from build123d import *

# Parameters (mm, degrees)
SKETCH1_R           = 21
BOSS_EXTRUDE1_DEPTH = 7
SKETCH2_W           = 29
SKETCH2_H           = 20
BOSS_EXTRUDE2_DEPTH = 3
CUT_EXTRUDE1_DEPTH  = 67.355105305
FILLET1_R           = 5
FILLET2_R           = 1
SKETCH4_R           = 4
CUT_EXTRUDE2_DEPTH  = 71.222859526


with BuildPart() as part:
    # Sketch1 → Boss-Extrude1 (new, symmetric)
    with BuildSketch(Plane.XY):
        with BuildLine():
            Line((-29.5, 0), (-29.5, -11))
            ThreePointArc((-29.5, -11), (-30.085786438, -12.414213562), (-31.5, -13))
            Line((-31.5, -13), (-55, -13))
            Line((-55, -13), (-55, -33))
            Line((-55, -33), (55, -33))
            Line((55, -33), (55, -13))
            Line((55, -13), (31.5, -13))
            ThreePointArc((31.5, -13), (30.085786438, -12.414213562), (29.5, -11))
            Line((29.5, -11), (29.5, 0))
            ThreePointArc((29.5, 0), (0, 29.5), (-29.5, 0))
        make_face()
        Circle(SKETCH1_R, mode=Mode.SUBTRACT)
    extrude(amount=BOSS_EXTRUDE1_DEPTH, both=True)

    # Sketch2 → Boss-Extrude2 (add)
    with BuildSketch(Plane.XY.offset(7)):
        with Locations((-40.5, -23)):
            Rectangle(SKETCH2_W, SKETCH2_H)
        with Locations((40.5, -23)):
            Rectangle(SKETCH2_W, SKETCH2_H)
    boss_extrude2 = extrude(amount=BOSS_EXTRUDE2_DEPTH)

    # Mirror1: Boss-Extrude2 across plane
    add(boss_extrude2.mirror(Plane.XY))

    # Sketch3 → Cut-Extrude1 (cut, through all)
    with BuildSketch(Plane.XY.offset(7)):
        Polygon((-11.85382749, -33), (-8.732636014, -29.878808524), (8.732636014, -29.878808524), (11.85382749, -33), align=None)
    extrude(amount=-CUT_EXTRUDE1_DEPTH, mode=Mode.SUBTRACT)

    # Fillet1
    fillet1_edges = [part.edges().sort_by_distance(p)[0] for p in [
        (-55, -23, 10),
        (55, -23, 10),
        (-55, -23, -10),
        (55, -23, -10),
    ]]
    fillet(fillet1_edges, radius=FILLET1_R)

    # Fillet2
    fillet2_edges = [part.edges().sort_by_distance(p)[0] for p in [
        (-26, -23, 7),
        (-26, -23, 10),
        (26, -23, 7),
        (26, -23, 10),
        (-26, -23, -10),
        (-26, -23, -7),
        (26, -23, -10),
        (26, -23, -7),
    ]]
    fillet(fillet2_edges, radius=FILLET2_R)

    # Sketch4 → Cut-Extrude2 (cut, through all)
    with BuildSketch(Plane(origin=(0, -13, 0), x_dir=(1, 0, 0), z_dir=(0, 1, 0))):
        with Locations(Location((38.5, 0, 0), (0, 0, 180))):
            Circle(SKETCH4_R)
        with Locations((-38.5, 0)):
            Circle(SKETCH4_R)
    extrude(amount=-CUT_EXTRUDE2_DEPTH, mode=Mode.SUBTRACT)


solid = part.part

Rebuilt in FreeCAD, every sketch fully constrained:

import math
import FreeCAD as App
import Part
import Sketcher

V = App.Vector
Q = App.Units.Quantity


def edges_at(feature, points):
    """Names of the edges that pass closest to the given points."""
    edges = feature.Shape.Edges
    near = lambda p: min(range(len(edges)), key=lambda i: edges[i].distToShape(Part.Vertex(*p))[0])
    return sorted({f"Edge{near(p) + 1}" for p in points})


def add_polygon(sketch, points):
    """Adds a closed chain of lines whose ends are joined by coincident constraints."""
    first, n = sketch.GeometryCount, len(points)
    for a, b in zip(points, points[1:] + points[:1]):
        sketch.addGeometry(Part.LineSegment(App.Vector(*a, 0), App.Vector(*b, 0)), False)
    for i in range(n):
        sketch.addConstraint(Sketcher.Constraint("Coincident", first + i, 2, first + (i + 1) % n, 1))

doc = App.newDocument("Part")
body = doc.addObject("PartDesign::Body", "Body")

# Sketch on XY plane
sketch1 = body.newObject("Sketcher::SketchObject", "Sketch")
sketch1.AttachmentSupport = (doc.getObject("XY_Plane"), [""])
sketch1.MapMode = "FlatFace"
sketch1.addGeometry([
    Part.LineSegment(V(-29.5, 0, 0), V(-29.5, -11, 0)),  # 0
    Part.ArcOfCircle(Part.Circle(V(-31.5, -11, 0), V(0, 0, 1), 2), math.radians(-90), math.radians(0)),  # 1
    Part.LineSegment(V(-31.5, -13, 0), V(-55, -13, 0)),  # 2
    Part.LineSegment(V(-55, -13, 0), V(-55, -33, 0)),  # 3
    Part.LineSegment(V(-55, -33, 0), V(55, -33, 0)),  # 4
    Part.LineSegment(V(55, -33, 0), V(55, -13, 0)),  # 5
    Part.LineSegment(V(55, -13, 0), V(31.5, -13, 0)),  # 6
    Part.ArcOfCircle(Part.Circle(V(31.5, -11, 0), V(0, 0, 1), 2), math.radians(-180), math.radians(-90)),  # 7
    Part.LineSegment(V(29.5, -11, 0), V(29.5, 0, 0)),  # 8
    Part.ArcOfCircle(Part.Circle(V(0, 0, 0), V(0, 0, 1), 29.5), math.radians(0), math.radians(180)),  # 9
    Part.Circle(V(0, 0, 0), V(0, 0, 1), 21),  # 10
], False)
sketch1.addConstraint([
    Sketcher.Constraint("Tangent", 0, 2, 1, 2),
    Sketcher.Constraint("Tangent", 1, 1, 2, 1),
    Sketcher.Constraint("Coincident", 2, 2, 3, 1),
    Sketcher.Constraint("Coincident", 3, 2, 4, 1),
    Sketcher.Constraint("Coincident", 4, 2, 5, 1),
    Sketcher.Constraint("Coincident", 5, 2, 6, 1),
    Sketcher.Constraint("Tangent", 6, 2, 7, 2),
    Sketcher.Constraint("Tangent", 7, 1, 8, 1),
    Sketcher.Constraint("Tangent", 8, 2, 9, 1),
    Sketcher.Constraint("Tangent", 9, 2, 0, 1),
    Sketcher.Constraint("Vertical", 0),
    Sketcher.Constraint("Horizontal", 2),
    Sketcher.Constraint("Vertical", 3),
    Sketcher.Constraint("Horizontal", 4),
    Sketcher.Constraint("Vertical", 5),
    Sketcher.Constraint("Horizontal", 6),
    Sketcher.Constraint("Vertical", 8),
    Sketcher.Constraint("Coincident", 9, 3, -1, 1),
    Sketcher.Constraint("Coincident", 10, 3, -1, 1),
    Sketcher.Constraint("Equal", 1, 7),
    Sketcher.Constraint("Symmetric", 2, 2, 5, 2, -2),
    Sketcher.Constraint("Diameter", 10, Q("42 mm")),
    Sketcher.Constraint("Radius", 1, Q("2 mm")),
    Sketcher.Constraint("Radius", 9, Q("29.5 mm")),
    Sketcher.Constraint("DistanceX", 4, 1, 4, 2, Q("110 mm")),
    Sketcher.Constraint("DistanceY", 0, 2, 0, 1, Q("11 mm")),
    Sketcher.Constraint("DistanceY", 3, 2, 3, 1, Q("20 mm")),
])
pad1 = body.newObject("PartDesign::Pad", "Pad")
pad1.Profile = sketch1
pad1.Length = 14
pad1.Midplane = True

# Sketch on XY plane
sketch2 = body.newObject("Sketcher::SketchObject", "Sketch001")
sketch2.AttachmentSupport = (doc.getObject("XY_Plane"), [""])
sketch2.MapMode = "FlatFace"
sketch2.AttachmentOffset = App.Placement(V(0, 0, 7), App.Rotation())
add_polygon(sketch2, [(-55, -13), (-55, -33), (-26, -33), (-26, -13)])  # lines 0-3
add_polygon(sketch2, [(26, -13), (26, -33), (55, -33), (55, -13)])  # lines 4-7
sketch2.addConstraint([
    Sketcher.Constraint("Vertical", 0),
    Sketcher.Constraint("Horizontal", 1),
    Sketcher.Constraint("Vertical", 2),
    Sketcher.Constraint("Horizontal", 3),
    Sketcher.Constraint("Vertical", 4),
    Sketcher.Constraint("Horizontal", 5),
    Sketcher.Constraint("Vertical", 6),
    Sketcher.Constraint("Horizontal", 7),
    Sketcher.Constraint("Symmetric", 1, 2, 4, 2, -2),
    Sketcher.Constraint("Symmetric", 3, 2, 6, 2, -2),
    Sketcher.Constraint("DistanceX", 1, 1, 1, 2, Q("29 mm")),
    Sketcher.Constraint("DistanceY", 0, 2, 0, 1, Q("20 mm")),
    Sketcher.Constraint("DistanceX", 0, 2, -1, 1, Q("55 mm")),
    Sketcher.Constraint("DistanceY", 0, 2, -1, 1, Q("33 mm")),
])
pad2 = body.newObject("PartDesign::Pad", "Pad001")
pad2.Profile = sketch2
pad2.Length = 3
doc.recompute()

mirrored = body.newObject("PartDesign::Mirrored", "Mirrored")
mirrored.Originals = [pad2]
mirrored.MirrorPlane = (doc.getObject("XY_Plane"), [""])
body.Tip = mirrored

# Sketch on XY plane
sketch3 = body.newObject("Sketcher::SketchObject", "Sketch002")
sketch3.AttachmentSupport = (doc.getObject("XY_Plane"), [""])
sketch3.MapMode = "FlatFace"
sketch3.AttachmentOffset = App.Placement(V(0, 0, 7), App.Rotation())
add_polygon(sketch3, [(-8.7, -29.9), (-11.9, -33), (11.9, -33), (8.7, -29.9)])  # lines 0-3
sketch3.addConstraint([
    Sketcher.Constraint("Horizontal", 1),
    Sketcher.Constraint("Horizontal", 3),
    Sketcher.Constraint("Perpendicular", 0, 2),
    Sketcher.Constraint("Equal", 0, 2),
    Sketcher.Constraint("DistanceY", 0, 2, -1, 1, Q("33 mm")),
    Sketcher.Constraint("Distance", 0, Q("4.414031 mm")),
    Sketcher.Constraint("DistanceX", 1, 1, 1, 2, Q("23.707655 mm")),
    Sketcher.Constraint("DistanceX", 0, 2, -1, 1, Q("11.853827 mm")),
])
pocket1 = body.newObject("PartDesign::Pocket", "Pocket")
pocket1.Profile = sketch3
pocket1.Type = "ThroughAll"
doc.recompute()

fillet = body.newObject("PartDesign::Fillet", "Fillet")
fillet.Base = (pocket1, edges_at(pocket1, [
    (-55, -23, 10),
    (55, -23, 10),
    (-55, -23, -10),
    (55, -23, -10),
]))
fillet.Radius = 5
doc.recompute()

fillet2 = body.newObject("PartDesign::Fillet", "Fillet001")
fillet2.Base = (fillet, edges_at(fillet, [
    (-26, -23, 7),
    (-26, -23, 10),
    (26, -23, 7),
    (26, -23, 10),
    (-26, -23, -10),
    (-26, -23, -7),
    (26, -23, -10),
    (26, -23, -7),
]))
fillet2.Radius = 1

# Sketch on XZ plane
sketch4 = body.newObject("Sketcher::SketchObject", "Sketch003")
sketch4.AttachmentSupport = (doc.getObject("XZ_Plane"), [""])
sketch4.MapMode = "FlatFace"
sketch4.AttachmentOffset = App.Placement(V(0, 0, 13), App.Rotation())
sketch4.addGeometry([
    Part.Circle(V(38.5, 0, 0), V(0, 0, 1), 4),
    Part.Circle(V(-38.5, 0, 0), V(0, 0, 1), 4),
], False)
sketch4.addConstraint([
    Sketcher.Constraint("Equal", 0, 1),
    Sketcher.Constraint("Symmetric", 0, 3, 1, 3, -1, 1),
    Sketcher.Constraint("PointOnObject", 0, 3, -1),
    Sketcher.Constraint("Diameter", 0, Q("8 mm")),
    Sketcher.Constraint("DistanceX", 1, 3, 0, 3, Q("77 mm")),
])
pocket2 = body.newObject("PartDesign::Pocket", "Pocket001")
pocket2.Profile = sketch4
pocket2.Type = "ThroughAll"
pocket2.Reversed = True

doc.recompute()
